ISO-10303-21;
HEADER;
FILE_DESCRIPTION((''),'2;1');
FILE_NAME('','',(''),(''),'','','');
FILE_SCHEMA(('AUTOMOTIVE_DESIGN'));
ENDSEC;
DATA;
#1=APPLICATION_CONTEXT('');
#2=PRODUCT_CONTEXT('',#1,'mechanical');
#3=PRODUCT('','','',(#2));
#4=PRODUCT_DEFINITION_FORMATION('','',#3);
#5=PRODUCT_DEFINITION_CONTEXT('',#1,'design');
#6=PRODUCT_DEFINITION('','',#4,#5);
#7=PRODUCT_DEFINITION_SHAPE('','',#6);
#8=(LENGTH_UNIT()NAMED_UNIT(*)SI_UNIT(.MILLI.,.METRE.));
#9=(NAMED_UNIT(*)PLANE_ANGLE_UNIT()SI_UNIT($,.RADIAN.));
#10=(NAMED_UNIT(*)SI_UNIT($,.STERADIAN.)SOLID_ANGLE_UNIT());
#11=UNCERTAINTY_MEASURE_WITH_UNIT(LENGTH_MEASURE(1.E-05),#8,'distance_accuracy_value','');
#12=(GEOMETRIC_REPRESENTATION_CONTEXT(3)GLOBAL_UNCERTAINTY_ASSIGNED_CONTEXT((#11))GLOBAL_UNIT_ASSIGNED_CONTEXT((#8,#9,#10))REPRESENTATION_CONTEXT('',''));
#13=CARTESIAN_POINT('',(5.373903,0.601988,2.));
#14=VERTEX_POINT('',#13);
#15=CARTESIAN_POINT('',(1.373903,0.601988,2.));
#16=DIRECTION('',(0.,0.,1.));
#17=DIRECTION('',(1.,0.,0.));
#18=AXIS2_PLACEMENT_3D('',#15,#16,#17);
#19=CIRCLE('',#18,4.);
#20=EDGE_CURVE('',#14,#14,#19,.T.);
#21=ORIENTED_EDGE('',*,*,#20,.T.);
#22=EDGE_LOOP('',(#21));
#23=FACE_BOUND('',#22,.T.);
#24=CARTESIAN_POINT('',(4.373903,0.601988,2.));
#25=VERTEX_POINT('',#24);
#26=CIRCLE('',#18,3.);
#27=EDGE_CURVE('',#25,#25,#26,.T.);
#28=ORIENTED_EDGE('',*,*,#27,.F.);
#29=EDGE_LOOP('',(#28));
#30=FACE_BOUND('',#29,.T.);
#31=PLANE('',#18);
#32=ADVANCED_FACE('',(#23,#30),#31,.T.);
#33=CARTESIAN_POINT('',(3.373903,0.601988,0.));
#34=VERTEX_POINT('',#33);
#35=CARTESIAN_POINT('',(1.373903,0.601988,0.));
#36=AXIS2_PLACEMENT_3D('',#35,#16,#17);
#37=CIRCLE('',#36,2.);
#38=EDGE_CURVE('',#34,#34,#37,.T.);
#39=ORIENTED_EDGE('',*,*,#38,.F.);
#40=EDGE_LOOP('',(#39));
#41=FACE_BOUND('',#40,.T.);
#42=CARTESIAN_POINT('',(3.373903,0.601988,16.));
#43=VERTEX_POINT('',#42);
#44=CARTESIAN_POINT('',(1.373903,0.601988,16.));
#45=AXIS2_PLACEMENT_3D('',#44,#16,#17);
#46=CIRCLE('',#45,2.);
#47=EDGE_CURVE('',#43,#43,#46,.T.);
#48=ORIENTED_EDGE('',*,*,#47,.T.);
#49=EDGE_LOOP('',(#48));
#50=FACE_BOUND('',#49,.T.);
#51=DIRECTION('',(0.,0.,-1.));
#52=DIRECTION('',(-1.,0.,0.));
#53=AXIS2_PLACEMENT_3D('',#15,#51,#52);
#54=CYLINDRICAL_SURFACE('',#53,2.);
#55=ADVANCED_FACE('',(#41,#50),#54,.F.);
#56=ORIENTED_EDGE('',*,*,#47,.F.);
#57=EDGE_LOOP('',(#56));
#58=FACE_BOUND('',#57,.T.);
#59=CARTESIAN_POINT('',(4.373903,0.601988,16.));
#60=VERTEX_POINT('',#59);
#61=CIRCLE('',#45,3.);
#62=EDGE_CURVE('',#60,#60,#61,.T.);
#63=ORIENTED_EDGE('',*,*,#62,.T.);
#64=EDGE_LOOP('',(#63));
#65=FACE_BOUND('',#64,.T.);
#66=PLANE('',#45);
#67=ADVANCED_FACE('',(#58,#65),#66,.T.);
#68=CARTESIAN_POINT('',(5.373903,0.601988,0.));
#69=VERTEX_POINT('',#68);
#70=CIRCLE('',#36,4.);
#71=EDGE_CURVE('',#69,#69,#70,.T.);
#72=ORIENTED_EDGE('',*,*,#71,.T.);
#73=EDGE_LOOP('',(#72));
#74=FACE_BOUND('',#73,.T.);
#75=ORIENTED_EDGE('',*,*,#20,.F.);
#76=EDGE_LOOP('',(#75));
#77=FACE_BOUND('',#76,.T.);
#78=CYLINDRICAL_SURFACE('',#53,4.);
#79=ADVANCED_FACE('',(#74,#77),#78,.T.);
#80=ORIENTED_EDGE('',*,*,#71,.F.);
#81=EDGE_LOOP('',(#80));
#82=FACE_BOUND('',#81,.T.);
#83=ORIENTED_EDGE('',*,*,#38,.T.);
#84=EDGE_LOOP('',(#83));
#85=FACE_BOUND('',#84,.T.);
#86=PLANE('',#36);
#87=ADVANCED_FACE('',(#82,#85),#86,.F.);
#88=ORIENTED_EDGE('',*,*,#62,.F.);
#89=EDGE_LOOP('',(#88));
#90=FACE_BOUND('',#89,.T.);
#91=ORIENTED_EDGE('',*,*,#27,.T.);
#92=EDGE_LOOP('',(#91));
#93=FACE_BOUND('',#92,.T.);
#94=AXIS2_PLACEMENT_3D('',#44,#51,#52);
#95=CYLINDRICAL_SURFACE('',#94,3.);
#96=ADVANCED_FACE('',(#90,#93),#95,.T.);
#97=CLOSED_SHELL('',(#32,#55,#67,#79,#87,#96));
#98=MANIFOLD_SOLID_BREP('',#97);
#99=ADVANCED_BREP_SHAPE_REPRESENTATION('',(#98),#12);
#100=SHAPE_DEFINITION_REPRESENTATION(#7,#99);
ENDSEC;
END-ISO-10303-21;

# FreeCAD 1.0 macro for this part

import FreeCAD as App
import Part
import Sketcher

V = App.Vector

doc = App.newDocument("Part")
body = doc.addObject("PartDesign::Body", "Body")

sketch1 = body.newObject("Sketcher::SketchObject", "Sketch")
sketch1.AttachmentSupport = (doc.getObject("XY_Plane"), [""])
sketch1.MapMode = "FlatFace"
sketch1.addGeometry([
    Part.Circle(V(1.373903, 0.601988, 0), V(0, 0, 1), 4),
    Part.Circle(V(1.373903, 0.601988, 0), V(0, 0, 1), 2),
], False)
sketch1.addConstraint([
    Sketcher.Constraint("Coincident", 1, 3, 0, 3),
    Sketcher.Constraint("Diameter", 0, 8.0),
    Sketcher.Constraint("Diameter", 1, 4.0),
    Sketcher.Constraint("DistanceX", -1, 1, 0, 3, 1.373903),
    Sketcher.Constraint("DistanceY", -1, 1, 0, 3, 0.601988),
])
pad1 = body.newObject("PartDesign::Pad", "Pad")
pad1.Profile = sketch1
pad1.Length = 2

sketch2 = body.newObject("Sketcher::SketchObject", "Sketch001")
sketch2.AttachmentSupport = (doc.getObject("XY_Plane"), [""])
sketch2.MapMode = "FlatFace"
sketch2.AttachmentOffset = App.Placement(V(0, 0, 2), App.Rotation())
sketch2.addGeometry([
    Part.Circle(V(1.373903, 0.601988, 0), V(0, 0, 1), 3),
    Part.Circle(V(1.373903, 0.601988, 0), V(0, 0, 1), 2),
], False)
sketch2.addConstraint([
    Sketcher.Constraint("Coincident", 1, 3, 0, 3),
    Sketcher.Constraint("Diameter", 0, 6.0),
    Sketcher.Constraint("Diameter", 1, 4.0),
    Sketcher.Constraint("DistanceX", -1, 1, 0, 3, 1.373903),
    Sketcher.Constraint("DistanceY", -1, 1, 0, 3, 0.601988),
])
pad2 = body.newObject("PartDesign::Pad", "Pad001")
pad2.Profile = sketch2
pad2.Length = 14

doc.recompute()
